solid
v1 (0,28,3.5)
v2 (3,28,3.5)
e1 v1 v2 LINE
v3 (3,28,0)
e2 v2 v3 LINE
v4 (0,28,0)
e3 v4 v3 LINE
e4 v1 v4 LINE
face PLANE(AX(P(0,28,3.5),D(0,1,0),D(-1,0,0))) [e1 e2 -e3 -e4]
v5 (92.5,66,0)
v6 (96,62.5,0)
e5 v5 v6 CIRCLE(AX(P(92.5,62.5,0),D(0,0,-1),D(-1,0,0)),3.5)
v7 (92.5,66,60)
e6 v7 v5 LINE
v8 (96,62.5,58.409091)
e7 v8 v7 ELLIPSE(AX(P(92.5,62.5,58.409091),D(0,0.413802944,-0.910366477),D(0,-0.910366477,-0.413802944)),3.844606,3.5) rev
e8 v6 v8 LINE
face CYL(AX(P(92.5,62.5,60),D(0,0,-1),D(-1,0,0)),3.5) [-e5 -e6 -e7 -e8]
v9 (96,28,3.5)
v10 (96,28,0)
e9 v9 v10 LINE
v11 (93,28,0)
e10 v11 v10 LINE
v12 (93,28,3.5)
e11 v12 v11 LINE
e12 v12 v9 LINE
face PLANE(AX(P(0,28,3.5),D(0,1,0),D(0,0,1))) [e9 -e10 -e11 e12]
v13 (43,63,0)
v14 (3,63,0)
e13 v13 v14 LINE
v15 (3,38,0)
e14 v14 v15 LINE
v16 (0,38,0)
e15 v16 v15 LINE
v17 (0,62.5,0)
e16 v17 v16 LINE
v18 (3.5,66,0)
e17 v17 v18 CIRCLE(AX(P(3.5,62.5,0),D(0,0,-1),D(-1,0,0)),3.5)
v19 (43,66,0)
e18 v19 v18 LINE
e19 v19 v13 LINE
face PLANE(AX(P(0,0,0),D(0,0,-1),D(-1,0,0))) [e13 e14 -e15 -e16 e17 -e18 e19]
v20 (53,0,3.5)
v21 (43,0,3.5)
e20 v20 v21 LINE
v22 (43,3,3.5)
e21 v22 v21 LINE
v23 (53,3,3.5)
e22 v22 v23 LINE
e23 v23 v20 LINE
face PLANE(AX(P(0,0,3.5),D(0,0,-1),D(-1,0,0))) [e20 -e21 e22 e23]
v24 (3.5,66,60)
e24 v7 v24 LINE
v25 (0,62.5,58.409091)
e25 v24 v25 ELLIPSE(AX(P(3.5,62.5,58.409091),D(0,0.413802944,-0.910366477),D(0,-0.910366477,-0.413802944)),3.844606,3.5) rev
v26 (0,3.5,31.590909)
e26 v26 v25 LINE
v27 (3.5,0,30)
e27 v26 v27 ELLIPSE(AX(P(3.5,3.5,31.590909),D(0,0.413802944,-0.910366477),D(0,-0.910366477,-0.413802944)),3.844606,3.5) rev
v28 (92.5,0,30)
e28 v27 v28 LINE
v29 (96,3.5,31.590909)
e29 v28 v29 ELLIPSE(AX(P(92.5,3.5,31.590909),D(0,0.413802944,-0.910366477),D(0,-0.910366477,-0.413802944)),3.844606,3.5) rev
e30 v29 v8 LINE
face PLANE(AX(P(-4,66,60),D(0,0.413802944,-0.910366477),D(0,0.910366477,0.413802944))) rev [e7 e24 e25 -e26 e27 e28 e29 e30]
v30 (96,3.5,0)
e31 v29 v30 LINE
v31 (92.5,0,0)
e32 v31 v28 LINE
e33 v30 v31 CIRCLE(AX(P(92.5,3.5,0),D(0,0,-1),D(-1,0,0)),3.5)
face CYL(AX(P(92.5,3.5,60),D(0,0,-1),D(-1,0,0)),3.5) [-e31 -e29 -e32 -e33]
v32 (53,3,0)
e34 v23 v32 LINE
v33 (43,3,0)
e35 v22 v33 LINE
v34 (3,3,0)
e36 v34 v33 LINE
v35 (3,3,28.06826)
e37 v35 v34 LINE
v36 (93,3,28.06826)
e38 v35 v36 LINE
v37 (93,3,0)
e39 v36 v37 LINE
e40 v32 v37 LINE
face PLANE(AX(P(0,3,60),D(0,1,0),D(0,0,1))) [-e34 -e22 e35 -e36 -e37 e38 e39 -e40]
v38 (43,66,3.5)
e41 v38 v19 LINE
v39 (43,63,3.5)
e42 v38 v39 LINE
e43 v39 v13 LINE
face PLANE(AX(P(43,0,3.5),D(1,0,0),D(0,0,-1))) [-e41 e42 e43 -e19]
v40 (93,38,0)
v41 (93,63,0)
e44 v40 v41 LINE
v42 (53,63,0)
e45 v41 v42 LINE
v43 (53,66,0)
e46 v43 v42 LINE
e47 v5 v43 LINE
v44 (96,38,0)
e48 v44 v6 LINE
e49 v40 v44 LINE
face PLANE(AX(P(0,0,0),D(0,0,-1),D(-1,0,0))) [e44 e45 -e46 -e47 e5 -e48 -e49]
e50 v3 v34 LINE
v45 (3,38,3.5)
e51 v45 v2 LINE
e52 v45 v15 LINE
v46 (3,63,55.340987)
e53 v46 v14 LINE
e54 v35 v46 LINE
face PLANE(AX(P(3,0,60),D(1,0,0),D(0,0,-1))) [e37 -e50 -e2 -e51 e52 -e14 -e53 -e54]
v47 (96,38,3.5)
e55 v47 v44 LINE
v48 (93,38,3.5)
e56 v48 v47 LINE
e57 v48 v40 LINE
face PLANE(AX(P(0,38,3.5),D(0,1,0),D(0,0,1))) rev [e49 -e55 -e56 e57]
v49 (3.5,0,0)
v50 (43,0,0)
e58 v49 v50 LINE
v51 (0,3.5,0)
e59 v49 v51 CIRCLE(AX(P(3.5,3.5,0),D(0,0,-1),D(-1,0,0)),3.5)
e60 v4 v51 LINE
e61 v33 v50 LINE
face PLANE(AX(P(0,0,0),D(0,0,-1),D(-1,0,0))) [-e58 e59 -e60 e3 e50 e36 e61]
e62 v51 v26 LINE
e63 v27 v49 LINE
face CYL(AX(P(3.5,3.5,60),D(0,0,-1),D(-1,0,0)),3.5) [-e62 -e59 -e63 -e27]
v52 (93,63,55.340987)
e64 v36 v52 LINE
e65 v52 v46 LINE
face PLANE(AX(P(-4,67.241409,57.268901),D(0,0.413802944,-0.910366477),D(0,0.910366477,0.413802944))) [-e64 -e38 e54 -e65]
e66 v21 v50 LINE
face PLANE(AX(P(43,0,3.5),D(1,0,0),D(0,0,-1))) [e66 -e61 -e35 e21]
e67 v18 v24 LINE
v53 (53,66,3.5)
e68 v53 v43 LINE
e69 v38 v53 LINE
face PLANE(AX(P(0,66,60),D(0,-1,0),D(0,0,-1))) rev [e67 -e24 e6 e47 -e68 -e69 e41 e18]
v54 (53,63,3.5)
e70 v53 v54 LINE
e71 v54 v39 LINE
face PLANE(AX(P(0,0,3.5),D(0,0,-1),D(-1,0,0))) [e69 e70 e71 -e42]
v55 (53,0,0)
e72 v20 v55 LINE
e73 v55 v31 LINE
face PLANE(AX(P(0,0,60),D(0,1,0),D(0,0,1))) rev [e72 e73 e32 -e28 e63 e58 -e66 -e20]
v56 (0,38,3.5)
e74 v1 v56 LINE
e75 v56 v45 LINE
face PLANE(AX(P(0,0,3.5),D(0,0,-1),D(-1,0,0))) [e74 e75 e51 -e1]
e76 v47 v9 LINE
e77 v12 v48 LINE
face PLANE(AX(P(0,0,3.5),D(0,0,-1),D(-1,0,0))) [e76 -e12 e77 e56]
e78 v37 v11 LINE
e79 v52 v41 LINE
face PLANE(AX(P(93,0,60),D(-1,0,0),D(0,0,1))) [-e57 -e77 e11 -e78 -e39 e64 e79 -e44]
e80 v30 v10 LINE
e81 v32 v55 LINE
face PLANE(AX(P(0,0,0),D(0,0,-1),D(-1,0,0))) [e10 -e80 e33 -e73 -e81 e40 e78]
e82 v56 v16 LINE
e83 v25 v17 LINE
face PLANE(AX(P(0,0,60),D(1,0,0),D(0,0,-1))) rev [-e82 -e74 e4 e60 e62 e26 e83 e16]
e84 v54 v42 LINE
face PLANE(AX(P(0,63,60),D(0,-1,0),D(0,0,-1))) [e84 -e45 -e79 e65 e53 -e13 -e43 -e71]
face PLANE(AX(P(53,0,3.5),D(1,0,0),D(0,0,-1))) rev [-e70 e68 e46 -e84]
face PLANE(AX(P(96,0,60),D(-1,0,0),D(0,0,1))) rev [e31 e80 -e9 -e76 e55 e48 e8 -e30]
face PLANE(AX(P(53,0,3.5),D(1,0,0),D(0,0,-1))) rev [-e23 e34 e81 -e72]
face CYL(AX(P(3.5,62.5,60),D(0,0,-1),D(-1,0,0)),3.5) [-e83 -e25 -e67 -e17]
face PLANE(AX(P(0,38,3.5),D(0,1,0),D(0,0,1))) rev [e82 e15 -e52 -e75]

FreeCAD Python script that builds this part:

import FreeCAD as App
import Part
import Sketcher
Q = App.Units.Quantity


def edges_at(feature, points):
    """Names of the edges that pass closest to the given points."""
    edges = feature.Shape.Edges
    near = lambda p: min(range(len(edges)), key=lambda i: edges[i].distToShape(Part.Vertex(*p))[0])
    return sorted({f"Edge{near(p) + 1}" for p in points})


def faces_at(feature, points):
    """Names of the faces that lie closest to the given points."""
    faces = feature.Shape.Faces
    near = lambda p: min(range(len(faces)), key=lambda i: faces[i].distToShape(Part.Vertex(*p))[0])
    return sorted({f"Face{near(p) + 1}" for p in points})


def add_polygon(sketch, points):
    """Adds a closed chain of lines whose ends are joined by coincident constraints."""
    first, n = sketch.GeometryCount, len(points)
    for a, b in zip(points, points[1:] + points[:1]):
        sketch.addGeometry(Part.LineSegment(App.Vector(*a, 0), App.Vector(*b, 0)), False)
    for i in range(n):
        sketch.addConstraint(Sketcher.Constraint("Coincident", first + i, 2, first + (i + 1) % n, 1))

doc = App.newDocument("Part")
body = doc.addObject("PartDesign::Body", "Body")

sketch1 = doc.addObject("Sketcher::SketchObject", "Sketch")
body.addObject(sketch1)
sketch1.AttachmentSupport = (doc.XY_Plane, [""])
sketch1.MapMode = "FlatFace"
add_polygon(sketch1, [(0, 66), (0, 0), (96, 0), (96, 66)])
sketch1.addConstraint([
    Sketcher.Constraint("Vertical", 0),
    Sketcher.Constraint("Horizontal", 1),
    Sketcher.Constraint("Vertical", 2),
    Sketcher.Constraint("Horizontal", 3),
    Sketcher.Constraint("Coincident", 0, 2, -1, 1),
    Sketcher.Constraint("DistanceX", 1, 1, 1, 2, Q("96 mm")),
    Sketcher.Constraint("DistanceY", 0, 2, 0, 1, Q("66 mm")),
])
pad1 = doc.addObject("PartDesign::Pad", "Pad")
body.addObject(pad1)
pad1.Profile = sketch1
pad1.Length = 60

sketch2 = doc.addObject("Sketcher::SketchObject", "Sketch001")
body.addObject(sketch2)
sketch2.AttachmentSupport = (doc.YZ_Plane, [""])
sketch2.MapMode = "FlatFace"
sketch2.AttachmentOffset = App.Placement(App.Vector(0, 0, 96), App.Rotation())
add_polygon(sketch2, [(0, 30), (66, 60), (0, 60)])
sketch2.addConstraint([
    Sketcher.Constraint("Horizontal", 1),
    Sketcher.Constraint("Vertical", 2),
    Sketcher.Constraint("PointOnObject", 1, 2, -2),
    Sketcher.Constraint("DistanceX", 1, 2, 1, 1, Q("66 mm")),
    Sketcher.Constraint("DistanceY", 2, 2, 2, 1, Q("30 mm")),
    Sketcher.Constraint("DistanceY", -1, 1, 0, 2, Q("60 mm")),
])
pocket1 = doc.addObject("PartDesign::Pocket", "Pocket")
body.addObject(pocket1)
pocket1.Profile = sketch2
pocket1.Length = 100
doc.recompute()

thickness = doc.addObject("PartDesign::Thickness", "Thickness")
body.addObject(thickness)
thickness.Base = (pocket1, faces_at(pocket1, [(48, 33, 0)]))
thickness.Value = 3
thickness.Reversed = True
thickness.Join = "Intersection"

sketch3 = doc.addObject("Sketcher::SketchObject", "Sketch002")
body.addObject(sketch3)
sketch3.AttachmentSupport = (doc.XY_Plane, [""])
sketch3.MapMode = "FlatFace"
add_polygon(sketch3, [(3, 38), (3, 28), (0, 28), (0, 38)])
add_polygon(sketch3, [(43, 63), (43, 66), (53, 66), (53, 63)])
add_polygon(sketch3, [(53, 3), (53, 0), (43, 0), (43, 3)])
add_polygon(sketch3, [(96, 38), (96, 28), (93, 28), (93, 38)])
sketch3.addConstraint([
    Sketcher.Constraint("Vertical", 0),
    Sketcher.Constraint("Horizontal", 1),
    Sketcher.Constraint("Vertical", 2),
    Sketcher.Constraint("Horizontal", 3),
    Sketcher.Constraint("Vertical", 4),
    Sketcher.Constraint("Horizontal", 5),
    Sketcher.Constraint("Vertical", 6),
    Sketcher.Constraint("Horizontal", 7),
    Sketcher.Constraint("Vertical", 8),
    Sketcher.Constraint("Horizontal", 9),
    Sketcher.Constraint("Vertical", 10),
    Sketcher.Constraint("Horizontal", 11),
    Sketcher.Constraint("Vertical", 12),
    Sketcher.Constraint("Horizontal", 13),
    Sketcher.Constraint("Vertical", 14),
    Sketcher.Constraint("Horizontal", 15),
    Sketcher.Constraint("PointOnObject", 1, 2, -2),
    Sketcher.Constraint("PointOnObject", 8, 2, -1),
    Sketcher.Constraint("Horizontal", 1, 2, 12, 2),
    Sketcher.Constraint("Horizontal", 3, 2, 14, 2),
    Sketcher.Constraint("Vertical", 6, 2, 8, 2),
    Sketcher.Constraint("Vertical", 7, 2, 9, 2),
    Sketcher.Constraint("Equal", 3, 13),
    Sketcher.Constraint("Equal", 11, 0),
    Sketcher.Constraint("Equal", 15, 4),
    Sketcher.Constraint("Equal", 6, 8),
    Sketcher.Constraint("DistanceX", 1, 2, 1, 1, Q("3 mm")),
    Sketcher.Constraint("DistanceX", 5, 1, 5, 2, Q("10 mm")),
    Sketcher.Constraint("DistanceY", -1, 1, 0, 2, Q("28 mm")),
    Sketcher.Constraint("DistanceX", -1, 1, 4, 2, Q("43 mm")),
    Sketcher.Constraint("DistanceY", -1, 1, 4, 2, Q("66 mm")),
    Sketcher.Constraint("DistanceX", -1, 1, 12, 2, Q("96 mm")),
])
pocket2 = doc.addObject("PartDesign::Pocket", "Pocket001")
body.addObject(pocket2)
pocket2.Profile = sketch3
pocket2.Length = 3.5
pocket2.Reversed = True
doc.recompute()

fillet = doc.addObject("PartDesign::Fillet", "Fillet")
body.addObject(fillet)
fillet.Base = (pocket2, edges_at(pocket2, [
    (96, 0, 15),
    (0, 0, 15),
    (0, 66, 30),
    (96, 66, 30),
]))
fillet.Radius = 3.5

doc.recompute()
